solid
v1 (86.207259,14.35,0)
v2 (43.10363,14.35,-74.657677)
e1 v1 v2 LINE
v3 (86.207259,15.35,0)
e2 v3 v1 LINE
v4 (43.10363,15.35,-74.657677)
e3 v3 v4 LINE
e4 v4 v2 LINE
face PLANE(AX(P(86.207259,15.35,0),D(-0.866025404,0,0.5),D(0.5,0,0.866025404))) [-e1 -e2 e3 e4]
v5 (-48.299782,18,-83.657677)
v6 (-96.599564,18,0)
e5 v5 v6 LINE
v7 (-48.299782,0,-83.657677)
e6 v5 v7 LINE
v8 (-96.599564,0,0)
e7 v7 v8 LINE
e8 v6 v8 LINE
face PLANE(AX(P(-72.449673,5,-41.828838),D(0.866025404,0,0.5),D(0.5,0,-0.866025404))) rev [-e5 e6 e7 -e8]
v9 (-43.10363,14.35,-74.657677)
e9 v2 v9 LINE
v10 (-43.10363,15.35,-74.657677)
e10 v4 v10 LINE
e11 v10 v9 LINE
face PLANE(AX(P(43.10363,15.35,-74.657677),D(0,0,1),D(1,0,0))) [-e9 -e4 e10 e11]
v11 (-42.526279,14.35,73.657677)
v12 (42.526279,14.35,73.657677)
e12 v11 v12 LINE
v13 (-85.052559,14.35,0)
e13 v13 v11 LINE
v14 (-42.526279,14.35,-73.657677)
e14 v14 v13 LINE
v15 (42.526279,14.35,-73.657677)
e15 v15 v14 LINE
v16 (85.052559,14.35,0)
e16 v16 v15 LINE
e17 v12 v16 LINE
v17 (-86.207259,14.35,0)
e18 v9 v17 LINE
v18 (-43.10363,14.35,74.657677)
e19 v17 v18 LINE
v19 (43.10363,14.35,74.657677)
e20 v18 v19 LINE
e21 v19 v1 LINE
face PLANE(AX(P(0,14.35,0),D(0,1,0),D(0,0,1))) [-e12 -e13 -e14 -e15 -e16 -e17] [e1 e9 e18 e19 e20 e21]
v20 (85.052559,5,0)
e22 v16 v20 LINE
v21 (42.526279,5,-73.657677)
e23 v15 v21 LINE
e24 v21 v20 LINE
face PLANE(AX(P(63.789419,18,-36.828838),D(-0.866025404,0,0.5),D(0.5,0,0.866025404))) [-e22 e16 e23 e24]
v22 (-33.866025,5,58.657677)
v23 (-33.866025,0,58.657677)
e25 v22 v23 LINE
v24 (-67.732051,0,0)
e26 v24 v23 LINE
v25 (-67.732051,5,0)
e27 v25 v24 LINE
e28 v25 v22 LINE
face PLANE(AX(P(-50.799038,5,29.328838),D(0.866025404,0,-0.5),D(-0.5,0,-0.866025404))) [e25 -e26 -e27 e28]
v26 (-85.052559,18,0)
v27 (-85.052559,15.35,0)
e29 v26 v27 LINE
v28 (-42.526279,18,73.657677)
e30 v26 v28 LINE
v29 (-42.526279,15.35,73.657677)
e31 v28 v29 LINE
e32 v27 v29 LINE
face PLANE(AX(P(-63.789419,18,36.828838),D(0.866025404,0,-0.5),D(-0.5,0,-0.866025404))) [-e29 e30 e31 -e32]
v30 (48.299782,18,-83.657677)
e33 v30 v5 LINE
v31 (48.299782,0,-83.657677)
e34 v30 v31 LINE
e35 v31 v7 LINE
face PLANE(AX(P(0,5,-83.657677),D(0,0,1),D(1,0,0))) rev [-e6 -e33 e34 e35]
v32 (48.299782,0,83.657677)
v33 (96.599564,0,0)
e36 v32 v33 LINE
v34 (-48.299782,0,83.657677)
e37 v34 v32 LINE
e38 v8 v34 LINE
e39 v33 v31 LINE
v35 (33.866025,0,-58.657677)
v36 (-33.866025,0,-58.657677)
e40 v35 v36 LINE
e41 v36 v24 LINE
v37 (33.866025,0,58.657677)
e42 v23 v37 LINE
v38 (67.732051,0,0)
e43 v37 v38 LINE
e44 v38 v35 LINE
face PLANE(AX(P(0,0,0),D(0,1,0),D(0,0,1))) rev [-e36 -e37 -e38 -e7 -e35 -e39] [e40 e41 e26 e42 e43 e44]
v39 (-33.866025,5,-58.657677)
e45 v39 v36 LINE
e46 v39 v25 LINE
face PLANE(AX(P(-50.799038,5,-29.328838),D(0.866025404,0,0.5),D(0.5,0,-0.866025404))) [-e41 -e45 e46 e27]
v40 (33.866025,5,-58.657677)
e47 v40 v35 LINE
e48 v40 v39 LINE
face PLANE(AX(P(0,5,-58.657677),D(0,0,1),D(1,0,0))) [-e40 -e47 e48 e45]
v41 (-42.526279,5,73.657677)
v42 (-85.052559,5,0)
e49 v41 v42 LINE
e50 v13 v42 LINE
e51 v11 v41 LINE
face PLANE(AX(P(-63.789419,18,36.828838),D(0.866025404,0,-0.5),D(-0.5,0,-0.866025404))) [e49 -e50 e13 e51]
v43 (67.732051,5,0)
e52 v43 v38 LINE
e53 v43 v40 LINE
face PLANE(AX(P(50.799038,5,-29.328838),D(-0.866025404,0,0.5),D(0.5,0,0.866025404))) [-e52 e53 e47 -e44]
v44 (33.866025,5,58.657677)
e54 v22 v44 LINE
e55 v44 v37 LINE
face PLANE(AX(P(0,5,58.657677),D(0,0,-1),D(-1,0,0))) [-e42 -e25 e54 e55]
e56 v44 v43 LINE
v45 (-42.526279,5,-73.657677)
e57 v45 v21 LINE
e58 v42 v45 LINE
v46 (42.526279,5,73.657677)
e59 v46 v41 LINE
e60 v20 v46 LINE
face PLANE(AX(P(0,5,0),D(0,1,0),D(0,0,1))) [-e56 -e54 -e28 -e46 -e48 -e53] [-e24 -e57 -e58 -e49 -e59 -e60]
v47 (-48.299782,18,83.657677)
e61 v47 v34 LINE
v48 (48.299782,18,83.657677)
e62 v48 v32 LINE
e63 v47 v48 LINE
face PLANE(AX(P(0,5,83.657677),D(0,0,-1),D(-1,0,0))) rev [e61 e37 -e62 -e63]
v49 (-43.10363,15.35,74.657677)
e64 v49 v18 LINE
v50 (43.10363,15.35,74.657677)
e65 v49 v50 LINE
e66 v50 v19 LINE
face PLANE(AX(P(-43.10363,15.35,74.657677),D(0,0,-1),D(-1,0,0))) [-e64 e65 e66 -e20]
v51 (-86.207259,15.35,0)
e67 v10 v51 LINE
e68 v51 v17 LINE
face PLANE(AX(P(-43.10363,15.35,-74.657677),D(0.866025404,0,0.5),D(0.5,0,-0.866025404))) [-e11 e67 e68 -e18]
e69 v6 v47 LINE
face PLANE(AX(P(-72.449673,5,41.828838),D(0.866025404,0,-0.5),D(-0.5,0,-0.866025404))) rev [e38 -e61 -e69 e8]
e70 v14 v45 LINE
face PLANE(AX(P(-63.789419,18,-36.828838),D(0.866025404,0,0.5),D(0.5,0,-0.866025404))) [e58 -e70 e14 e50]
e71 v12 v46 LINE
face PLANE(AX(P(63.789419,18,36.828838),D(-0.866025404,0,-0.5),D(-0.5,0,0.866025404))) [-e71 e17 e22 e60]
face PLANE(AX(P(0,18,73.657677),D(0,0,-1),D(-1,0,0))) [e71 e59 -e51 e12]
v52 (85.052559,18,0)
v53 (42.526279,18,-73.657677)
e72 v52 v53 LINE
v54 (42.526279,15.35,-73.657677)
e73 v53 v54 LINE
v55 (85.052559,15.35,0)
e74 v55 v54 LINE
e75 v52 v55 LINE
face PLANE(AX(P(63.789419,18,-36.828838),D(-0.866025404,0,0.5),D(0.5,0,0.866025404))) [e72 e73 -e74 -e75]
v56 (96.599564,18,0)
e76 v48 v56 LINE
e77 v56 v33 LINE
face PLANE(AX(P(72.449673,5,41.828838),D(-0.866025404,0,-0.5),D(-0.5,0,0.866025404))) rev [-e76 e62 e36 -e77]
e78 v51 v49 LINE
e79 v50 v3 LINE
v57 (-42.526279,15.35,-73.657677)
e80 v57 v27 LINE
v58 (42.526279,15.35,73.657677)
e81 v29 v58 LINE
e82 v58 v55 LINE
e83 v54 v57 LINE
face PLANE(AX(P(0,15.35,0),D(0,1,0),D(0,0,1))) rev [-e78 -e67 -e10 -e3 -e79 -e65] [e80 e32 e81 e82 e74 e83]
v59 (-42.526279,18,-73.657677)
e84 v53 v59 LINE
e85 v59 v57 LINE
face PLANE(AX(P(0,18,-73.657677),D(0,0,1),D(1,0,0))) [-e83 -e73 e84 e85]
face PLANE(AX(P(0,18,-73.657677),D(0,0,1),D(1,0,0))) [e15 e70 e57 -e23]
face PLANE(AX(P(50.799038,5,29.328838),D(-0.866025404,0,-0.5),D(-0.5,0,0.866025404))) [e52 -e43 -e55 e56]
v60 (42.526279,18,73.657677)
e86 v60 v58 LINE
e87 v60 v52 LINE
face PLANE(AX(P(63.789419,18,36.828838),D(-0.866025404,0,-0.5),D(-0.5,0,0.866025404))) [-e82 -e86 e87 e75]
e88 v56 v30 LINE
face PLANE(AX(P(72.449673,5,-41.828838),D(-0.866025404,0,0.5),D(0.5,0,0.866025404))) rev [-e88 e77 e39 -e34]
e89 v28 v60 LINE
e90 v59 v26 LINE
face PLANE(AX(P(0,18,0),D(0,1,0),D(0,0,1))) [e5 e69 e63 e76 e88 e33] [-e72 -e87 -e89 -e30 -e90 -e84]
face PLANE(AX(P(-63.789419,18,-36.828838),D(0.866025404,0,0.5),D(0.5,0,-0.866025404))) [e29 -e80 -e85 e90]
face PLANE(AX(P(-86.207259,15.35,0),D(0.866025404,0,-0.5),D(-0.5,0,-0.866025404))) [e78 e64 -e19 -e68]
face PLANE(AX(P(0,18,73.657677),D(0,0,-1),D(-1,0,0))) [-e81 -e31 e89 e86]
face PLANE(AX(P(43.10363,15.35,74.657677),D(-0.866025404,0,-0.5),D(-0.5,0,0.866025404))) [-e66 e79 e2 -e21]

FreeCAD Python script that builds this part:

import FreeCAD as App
import Part
import Sketcher
Q = App.Units.Quantity

doc = App.newDocument("Part")
body = doc.addObject("PartDesign::Body", "Body")

# Sketch on XZ plane
sketch1 = body.newObject("Sketcher::SketchObject", "Sketch")
sketch1.AttachmentSupport = (doc.getObject("XZ_Plane"), [""])
sketch1.MapMode = "FlatFace"
sketch1.addGeometry([
    Part.LineSegment(App.Vector(-48.299782, 83.657677, 0), App.Vector(48.299782, 83.657677, 0)),  # 0
    Part.LineSegment(App.Vector(48.299782, 83.657677, 0), App.Vector(96.599564, 0, 0)),  # 1
    Part.LineSegment(App.Vector(96.599564, 0, 0), App.Vector(48.299782, -83.657677, 0)),  # 2
    Part.LineSegment(App.Vector(48.299782, -83.657677, 0), App.Vector(-48.299782, -83.657677, 0)),  # 3
    Part.LineSegment(App.Vector(-48.299782, -83.657677, 0), App.Vector(-96.599564, 0, 0)),  # 4
    Part.LineSegment(App.Vector(-96.599564, 0, 0), App.Vector(-48.299782, 83.657677, 0)),  # 5
    Part.LineSegment(App.Vector(-33.866025, -58.657677, 0), App.Vector(33.866025, -58.657677, 0)),  # 6
    Part.LineSegment(App.Vector(33.866025, -58.657677, 0), App.Vector(67.732051, 0, 0)),  # 7
    Part.LineSegment(App.Vector(67.732051, 0, 0), App.Vector(33.866025, 58.657677, 0)),  # 8
    Part.LineSegment(App.Vector(33.866025, 58.657677, 0), App.Vector(-33.866025, 58.657677, 0)),  # 9
    Part.LineSegment(App.Vector(-33.866025, 58.657677, 0), App.Vector(-67.732051, 0, 0)),  # 10
    Part.LineSegment(App.Vector(-67.732051, 0, 0), App.Vector(-33.866025, -58.657677, 0)),  # 11
], False)
sketch1.addConstraint([
    Sketcher.Constraint("Coincident", 0, 2, 1, 1),
    Sketcher.Constraint("Coincident", 1, 2, 2, 1),
    Sketcher.Constraint("Coincident", 2, 2, 3, 1),
    Sketcher.Constraint("Coincident", 3, 2, 4, 1),
    Sketcher.Constraint("Coincident", 4, 2, 5, 1),
    Sketcher.Constraint("Coincident", 5, 2, 0, 1),
    Sketcher.Constraint("Coincident", 6, 2, 7, 1),
    Sketcher.Constraint("Coincident", 7, 2, 8, 1),
    Sketcher.Constraint("Coincident", 8, 2, 9, 1),
    Sketcher.Constraint("Coincident", 9, 2, 10, 1),
    Sketcher.Constraint("Coincident", 10, 2, 11, 1),
    Sketcher.Constraint("Coincident", 11, 2, 6, 1),
    Sketcher.Constraint("Horizontal", 0),
    Sketcher.Constraint("Horizontal", 3),
    Sketcher.Constraint("Horizontal", 6),
    Sketcher.Constraint("Horizontal", 9),
    Sketcher.Constraint("Symmetric", 0, 2, 3, 2, -1, 1),
    Sketcher.Constraint("Symmetric", 1, 2, 4, 2, -1, 1),
    Sketcher.Constraint("Symmetric", 6, 2, 9, 2, -1, 1),
    Sketcher.Constraint("Symmetric", 7, 2, 10, 2, -1, 1),
    Sketcher.Constraint("PointOnObject", 1, 2, -1),
    Sketcher.Constraint("PointOnObject", 7, 2, -1),
    Sketcher.Constraint("Parallel", 2, 5),
    Sketcher.Constraint("Parallel", 5, 7),
    Sketcher.Constraint("Parallel", 4, 8),
    Sketcher.Constraint("Parallel", 8, 11),
    Sketcher.Constraint("Vertical", 0, 2, 2, 2),
    Sketcher.Constraint("Angle", 1, Q("-60 deg")),
    Sketcher.Constraint("DistanceY", 2, 2, 6, 2, Q("25 mm")),
    Sketcher.Constraint("DistanceX", 6, 1, 6, 2, Q("67.732051 mm")),
    Sketcher.Constraint("Distance", 7, Q("67.732051 mm")),
    Sketcher.Constraint("DistanceX", 0, 1, 0, 2, Q("96.599564 mm")),
])
pad1 = body.newObject("PartDesign::Pad", "Pad")
pad1.Profile = sketch1
pad1.Length = 5
pad1.Reversed = True

# Sketch on XZ plane
sketch2 = body.newObject("Sketcher::SketchObject", "Sketch001")
sketch2.AttachmentSupport = (doc.getObject("XZ_Plane"), [""])
sketch2.MapMode = "FlatFace"
sketch2.addGeometry([
    Part.LineSegment(App.Vector(-48.299782, -83.657677, 0), App.Vector(-96.599564, 0, 0)),  # 0
    Part.LineSegment(App.Vector(-96.599564, 0, 0), App.Vector(-48.299782, 83.657677, 0)),  # 1
    Part.LineSegment(App.Vector(-48.299782, 83.657677, 0), App.Vector(48.299782, 83.657677, 0)),  # 2
    Part.LineSegment(App.Vector(48.299782, 83.657677, 0), App.Vector(96.599564, 0, 0)),  # 3
    Part.LineSegment(App.Vector(96.599564, 0, 0), App.Vector(48.299782, -83.657677, 0)),  # 4
    Part.LineSegment(App.Vector(48.299782, -83.657677, 0), App.Vector(-48.299782, -83.657677, 0)),  # 5
    Part.LineSegment(App.Vector(-42.526279, 73.657677, 0), App.Vector(-85.052559, 0, 0)),  # 6
    Part.LineSegment(App.Vector(-85.052559, 0, 0), App.Vector(-42.526279, -73.657677, 0)),  # 7
    Part.LineSegment(App.Vector(-42.526279, -73.657677, 0), App.Vector(42.526279, -73.657677, 0)),  # 8
    Part.LineSegment(App.Vector(42.526279, -73.657677, 0), App.Vector(85.052559, 0, 0)),  # 9
    Part.LineSegment(App.Vector(85.052559, 0, 0), App.Vector(42.526279, 73.657677, 0)),  # 10
    Part.LineSegment(App.Vector(42.526279, 73.657677, 0), App.Vector(-42.526279, 73.657677, 0)),  # 11
], False)
sketch2.addConstraint([
    Sketcher.Constraint("Coincident", 0, 2, 1, 1),
    Sketcher.Constraint("Coincident", 1, 2, 2, 1),
    Sketcher.Constraint("Coincident", 2, 2, 3, 1),
    Sketcher.Constraint("Coincident", 3, 2, 4, 1),
    Sketcher.Constraint("Coincident", 4, 2, 5, 1),
    Sketcher.Constraint("Coincident", 5, 2, 0, 1),
    Sketcher.Constraint("Coincident", 6, 2, 7, 1),
    Sketcher.Constraint("Coincident", 7, 2, 8, 1),
    Sketcher.Constraint("Coincident", 8, 2, 9, 1),
    Sketcher.Constraint("Coincident", 9, 2, 10, 1),
    Sketcher.Constraint("Coincident", 10, 2, 11, 1),
    Sketcher.Constraint("Coincident", 11, 2, 6, 1),
    Sketcher.Constraint("Horizontal", 2),
    Sketcher.Constraint("Horizontal", 5),
    Sketcher.Constraint("Horizontal", 8),
    Sketcher.Constraint("Horizontal", 11),
    Sketcher.Constraint("Symmetric", 0, 2, 3, 2, -1, 1),
    Sketcher.Constraint("Symmetric", 1, 2, 4, 2, -1, 1),
    Sketcher.Constraint("Symmetric", 6, 2, 9, 2, -1, 1),
    Sketcher.Constraint("Symmetric", 7, 2, 10, 2, -1, 1),
    Sketcher.Constraint("PointOnObject", 0, 2, -1),
    Sketcher.Constraint("PointOnObject", 6, 2, -1),
    Sketcher.Constraint("Parallel", 0, 3),
    Sketcher.Constraint("Parallel", 4, 6),
    Sketcher.Constraint("Parallel", 3, 7),
    Sketcher.Constraint("Parallel", 6, 9),
    Sketcher.Constraint("Vertical", 2, 2, 4, 2),
    Sketcher.Constraint("Angle", 0, Q("120 deg")),
    Sketcher.Constraint("DistanceY", 5, 2, 7, 2, Q("10 mm")),
    Sketcher.Constraint("DistanceX", 8, 1, 8, 2, Q("85.052559 mm")),
    Sketcher.Constraint("Distance", 6, Q("85.052559 mm")),
    Sketcher.Constraint("DistanceX", 2, 1, 2, 2, Q("96.599564 mm")),
])
pad2 = body.newObject("PartDesign::Pad", "Pad001")
pad2.Profile = sketch2
pad2.Length = 18
pad2.Reversed = True

# Sketch on XZ plane
sketch3 = body.newObject("Sketcher::SketchObject", "Sketch002")
sketch3.AttachmentSupport = (doc.getObject("XZ_Plane"), [""])
sketch3.MapMode = "FlatFace"
sketch3.AttachmentOffset = App.Placement(App.Vector(0, 0, -14.35), App.Rotation())
sketch3.addGeometry([
    Part.LineSegment(App.Vector(86.207259, 0, 0), App.Vector(43.10363, -74.657677, 0)),  # 0
    Part.LineSegment(App.Vector(43.10363, -74.657677, 0), App.Vector(-43.10363, -74.657677, 0)),  # 1
    Part.LineSegment(App.Vector(-43.10363, -74.657677, 0), App.Vector(-86.207259, 0, 0)),  # 2
    Part.LineSegment(App.Vector(-86.207259, 0, 0), App.Vector(-43.10363, 74.657677, 0)),  # 3
    Part.LineSegment(App.Vector(-43.10363, 74.657677, 0), App.Vector(43.10363, 74.657677, 0)),  # 4
    Part.LineSegment(App.Vector(43.10363, 74.657677, 0), App.Vector(86.207259, 0, 0)),  # 5
    Part.LineSegment(App.Vector(42.526279, -73.657677, 0), App.Vector(85.052559, 0, 0)),  # 6
    Part.LineSegment(App.Vector(85.052559, 0, 0), App.Vector(42.526279, 73.657677, 0)),  # 7
    Part.LineSegment(App.Vector(42.526279, 73.657677, 0), App.Vector(-42.526279, 73.657677, 0)),  # 8
    Part.LineSegment(App.Vector(-42.526279, 73.657677, 0), App.Vector(-85.052559, 0, 0)),  # 9
    Part.LineSegment(App.Vector(-85.052559, 0, 0), App.Vector(-42.526279, -73.657677, 0)),  # 10
    Part.LineSegment(App.Vector(-42.526279, -73.657677, 0), App.Vector(42.526279, -73.657677, 0)),  # 11
], False)
sketch3.addConstraint([
    Sketcher.Constraint("Coincident", 0, 2, 1, 1),
    Sketcher.Constraint("Coincident", 1, 2, 2, 1),
    Sketcher.Constraint("Coincident", 2, 2, 3, 1),
    Sketcher.Constraint("Coincident", 3, 2, 4, 1),
    Sketcher.Constraint("Coincident", 4, 2, 5, 1),
    Sketcher.Constraint("Coincident", 5, 2, 0, 1),
    Sketcher.Constraint("Coincident", 6, 2, 7, 1),
    Sketcher.Constraint("Coincident", 7, 2, 8, 1),
    Sketcher.Constraint("Coincident", 8, 2, 9, 1),
    Sketcher.Constraint("Coincident", 9, 2, 10, 1),
    Sketcher.Constraint("Coincident", 10, 2, 11, 1),
    Sketcher.Constraint("Coincident", 11, 2, 6, 1),
    Sketcher.Constraint("Horizontal", 1),
    Sketcher.Constraint("Horizontal", 4),
    Sketcher.Constraint("Horizontal", 8),
    Sketcher.Constraint("Horizontal", 11),
    Sketcher.Constraint("Symmetric", 0, 2, 3, 2, -1, 1),
    Sketcher.Constraint("Symmetric", 2, 2, 5, 2, -1, 1),
    Sketcher.Constraint("Symmetric", 6, 2, 9, 2, -1, 1),
    Sketcher.Constraint("Symmetric", 7, 2, 10, 2, -1, 1),
    Sketcher.Constraint("PointOnObject", 2, 2, -1),
    Sketcher.Constraint("PointOnObject", 6, 2, -1),
    Sketcher.Constraint("Parallel", 2, 5),
    Sketcher.Constraint("Parallel", 3, 6),
    Sketcher.Constraint("Parallel", 5, 7),
    Sketcher.Constraint("Parallel", 6, 9),
    Sketcher.Constraint("Vertical", 1, 2, 3, 2),
    Sketcher.Constraint("Angle", 0, Q("-120 deg")),
    Sketcher.Constraint("DistanceY", 7, 2, 4, 2, Q("1 mm")),
    Sketcher.Constraint("DistanceX", 1, 2, 1, 1, Q("86.207259 mm")),
    Sketcher.Constraint("DistanceX", 8, 2, 8, 1, Q("85.052559 mm")),
    Sketcher.Constraint("Distance", 0, Q("86.207259 mm")),
])
pocket1 = body.newObject("PartDesign::Pocket", "Pocket")
pocket1.Profile = sketch3
pocket1.Length = 1

doc.recompute()
